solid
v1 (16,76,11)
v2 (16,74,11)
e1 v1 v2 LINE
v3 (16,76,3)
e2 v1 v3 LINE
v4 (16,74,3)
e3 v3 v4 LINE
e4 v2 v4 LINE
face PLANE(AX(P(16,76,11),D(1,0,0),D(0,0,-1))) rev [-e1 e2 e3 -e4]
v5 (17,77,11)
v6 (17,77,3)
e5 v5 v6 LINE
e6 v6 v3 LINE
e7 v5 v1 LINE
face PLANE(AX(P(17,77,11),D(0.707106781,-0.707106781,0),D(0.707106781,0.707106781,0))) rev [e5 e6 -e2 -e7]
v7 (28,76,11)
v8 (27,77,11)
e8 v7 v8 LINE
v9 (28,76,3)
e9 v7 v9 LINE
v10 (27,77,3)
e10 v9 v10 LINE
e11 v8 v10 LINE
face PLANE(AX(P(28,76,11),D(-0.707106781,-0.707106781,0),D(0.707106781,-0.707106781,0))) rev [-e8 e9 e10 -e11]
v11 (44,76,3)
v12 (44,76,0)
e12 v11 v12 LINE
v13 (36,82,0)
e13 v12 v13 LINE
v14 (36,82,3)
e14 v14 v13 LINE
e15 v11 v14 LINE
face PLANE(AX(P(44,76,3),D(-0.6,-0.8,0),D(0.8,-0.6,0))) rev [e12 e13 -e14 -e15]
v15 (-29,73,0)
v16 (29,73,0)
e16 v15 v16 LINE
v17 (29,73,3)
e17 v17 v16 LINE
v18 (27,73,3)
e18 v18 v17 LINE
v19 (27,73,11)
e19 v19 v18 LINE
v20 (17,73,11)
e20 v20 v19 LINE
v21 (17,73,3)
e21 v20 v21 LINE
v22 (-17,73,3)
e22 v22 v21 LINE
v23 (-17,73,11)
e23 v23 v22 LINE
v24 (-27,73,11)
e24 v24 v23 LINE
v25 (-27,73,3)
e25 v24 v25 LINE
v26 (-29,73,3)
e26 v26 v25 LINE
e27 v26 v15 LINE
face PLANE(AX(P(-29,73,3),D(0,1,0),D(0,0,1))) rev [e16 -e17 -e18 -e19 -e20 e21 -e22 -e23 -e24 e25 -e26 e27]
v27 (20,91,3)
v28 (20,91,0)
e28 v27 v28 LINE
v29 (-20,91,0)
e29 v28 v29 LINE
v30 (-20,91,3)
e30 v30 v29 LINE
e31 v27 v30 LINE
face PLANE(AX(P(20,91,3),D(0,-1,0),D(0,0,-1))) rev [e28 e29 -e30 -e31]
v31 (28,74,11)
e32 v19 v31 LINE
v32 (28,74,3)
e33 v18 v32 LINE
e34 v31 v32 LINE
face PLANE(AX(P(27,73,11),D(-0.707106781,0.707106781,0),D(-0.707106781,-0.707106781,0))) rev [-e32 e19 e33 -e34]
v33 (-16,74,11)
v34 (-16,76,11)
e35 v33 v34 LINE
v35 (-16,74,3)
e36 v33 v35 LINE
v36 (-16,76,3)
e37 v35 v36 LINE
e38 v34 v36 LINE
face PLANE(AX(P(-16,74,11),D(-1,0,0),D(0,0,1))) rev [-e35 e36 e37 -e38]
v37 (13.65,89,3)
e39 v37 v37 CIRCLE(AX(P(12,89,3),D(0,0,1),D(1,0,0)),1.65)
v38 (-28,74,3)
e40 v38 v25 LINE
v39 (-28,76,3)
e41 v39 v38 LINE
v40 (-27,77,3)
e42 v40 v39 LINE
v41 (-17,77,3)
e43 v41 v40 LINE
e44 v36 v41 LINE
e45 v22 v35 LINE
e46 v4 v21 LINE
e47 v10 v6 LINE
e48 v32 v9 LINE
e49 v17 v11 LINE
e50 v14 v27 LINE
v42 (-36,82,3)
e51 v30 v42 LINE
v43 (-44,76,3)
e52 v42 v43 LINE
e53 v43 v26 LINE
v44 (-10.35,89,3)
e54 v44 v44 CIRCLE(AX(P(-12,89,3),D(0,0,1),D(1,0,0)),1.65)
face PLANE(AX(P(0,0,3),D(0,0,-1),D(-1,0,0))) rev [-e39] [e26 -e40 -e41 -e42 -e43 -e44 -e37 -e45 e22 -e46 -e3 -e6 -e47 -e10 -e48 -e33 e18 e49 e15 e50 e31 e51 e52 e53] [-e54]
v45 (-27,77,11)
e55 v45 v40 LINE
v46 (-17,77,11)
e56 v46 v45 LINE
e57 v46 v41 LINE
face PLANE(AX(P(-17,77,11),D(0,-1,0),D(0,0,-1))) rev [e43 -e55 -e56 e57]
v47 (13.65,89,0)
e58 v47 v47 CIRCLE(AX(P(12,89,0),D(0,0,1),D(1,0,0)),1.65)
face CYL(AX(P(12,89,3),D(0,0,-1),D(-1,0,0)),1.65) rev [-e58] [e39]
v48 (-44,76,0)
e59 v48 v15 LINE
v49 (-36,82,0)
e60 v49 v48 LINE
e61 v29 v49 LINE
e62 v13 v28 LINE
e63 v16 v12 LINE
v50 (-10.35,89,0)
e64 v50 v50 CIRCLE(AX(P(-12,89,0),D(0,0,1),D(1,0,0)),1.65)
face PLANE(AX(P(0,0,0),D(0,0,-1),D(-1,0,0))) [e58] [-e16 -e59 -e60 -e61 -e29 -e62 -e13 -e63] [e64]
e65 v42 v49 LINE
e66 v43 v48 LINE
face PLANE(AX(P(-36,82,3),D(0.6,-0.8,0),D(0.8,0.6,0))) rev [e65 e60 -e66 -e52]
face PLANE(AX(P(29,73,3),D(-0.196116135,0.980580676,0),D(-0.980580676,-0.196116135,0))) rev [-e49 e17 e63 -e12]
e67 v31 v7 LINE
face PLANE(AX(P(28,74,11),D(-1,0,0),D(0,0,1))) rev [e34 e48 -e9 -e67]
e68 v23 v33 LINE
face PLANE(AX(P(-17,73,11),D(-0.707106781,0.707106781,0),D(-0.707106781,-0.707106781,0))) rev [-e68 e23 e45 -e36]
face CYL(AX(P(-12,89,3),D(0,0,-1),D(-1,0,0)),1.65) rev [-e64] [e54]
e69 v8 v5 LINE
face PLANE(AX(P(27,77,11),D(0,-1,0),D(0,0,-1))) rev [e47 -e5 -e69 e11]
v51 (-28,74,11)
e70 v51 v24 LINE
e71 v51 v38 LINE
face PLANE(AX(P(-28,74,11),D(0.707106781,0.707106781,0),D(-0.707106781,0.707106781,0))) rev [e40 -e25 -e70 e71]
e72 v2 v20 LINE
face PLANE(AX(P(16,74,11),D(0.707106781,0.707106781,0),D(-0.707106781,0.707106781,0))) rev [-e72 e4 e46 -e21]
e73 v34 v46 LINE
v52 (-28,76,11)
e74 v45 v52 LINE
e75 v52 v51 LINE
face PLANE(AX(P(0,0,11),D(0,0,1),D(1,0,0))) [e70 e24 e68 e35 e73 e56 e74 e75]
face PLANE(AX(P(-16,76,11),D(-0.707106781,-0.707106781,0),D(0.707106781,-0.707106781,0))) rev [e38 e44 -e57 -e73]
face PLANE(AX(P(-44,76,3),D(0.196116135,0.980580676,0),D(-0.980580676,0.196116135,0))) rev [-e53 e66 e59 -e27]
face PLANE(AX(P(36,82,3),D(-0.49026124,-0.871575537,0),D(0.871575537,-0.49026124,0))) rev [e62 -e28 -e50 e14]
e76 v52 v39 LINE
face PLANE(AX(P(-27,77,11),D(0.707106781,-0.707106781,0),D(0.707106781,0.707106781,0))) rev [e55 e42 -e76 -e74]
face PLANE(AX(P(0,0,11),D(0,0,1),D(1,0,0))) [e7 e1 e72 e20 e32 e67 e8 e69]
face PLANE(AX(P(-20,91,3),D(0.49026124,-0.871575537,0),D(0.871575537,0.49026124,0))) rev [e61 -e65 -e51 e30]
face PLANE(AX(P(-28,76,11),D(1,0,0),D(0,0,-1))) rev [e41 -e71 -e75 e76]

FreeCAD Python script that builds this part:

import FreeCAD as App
import Part
import Sketcher
from FreeCAD import Vector

doc = App.newDocument("Part")
body = doc.addObject("PartDesign::Body", "Body")

# Sketch on XY plane
sketch1 = body.newObject("Sketcher::SketchObject", "Sketch")
sketch1.AttachmentSupport = (doc.getObject("XY_Plane"), [""])
sketch1.MapMode = "FlatFace"
sketch1.addGeometry([
    Part.LineSegment(Vector(-29, 73, 0), Vector(29, 73, 0)),  # 0
    Part.LineSegment(Vector(29, 73, 0), Vector(44, 76, 0)),  # 1
    Part.LineSegment(Vector(44, 76, 0), Vector(36, 82, 0)),  # 2
    Part.LineSegment(Vector(36, 82, 0), Vector(20, 91, 0)),  # 3
    Part.LineSegment(Vector(20, 91, 0), Vector(-20, 91, 0)),  # 4
    Part.LineSegment(Vector(-20, 91, 0), Vector(-36, 82, 0)),  # 5
    Part.LineSegment(Vector(-36, 82, 0), Vector(-44, 76, 0)),  # 6
    Part.LineSegment(Vector(-44, 76, 0), Vector(-29, 73, 0)),  # 7
    Part.Circle(Vector(-12, 89, 0), Vector(0, 0, 1), 1.6),  # 8
    Part.Circle(Vector(12, 89, 0), Vector(0, 0, 1), 1.6),  # 9
], False)
sketch1.addConstraint([
    Sketcher.Constraint("Coincident", 0, 2, 1, 1),
    Sketcher.Constraint("Coincident", 1, 2, 2, 1),
    Sketcher.Constraint("Coincident", 2, 2, 3, 1),
    Sketcher.Constraint("Coincident", 3, 2, 4, 1),
    Sketcher.Constraint("Coincident", 4, 2, 5, 1),
    Sketcher.Constraint("Coincident", 5, 2, 6, 1),
    Sketcher.Constraint("Coincident", 6, 2, 7, 1),
    Sketcher.Constraint("Coincident", 7, 2, 0, 1),
    Sketcher.Constraint("Horizontal", 0),
    Sketcher.Constraint("Horizontal", 4),
    Sketcher.Constraint("Equal", 8, 9),
    Sketcher.Constraint("Symmetric", 8, 3, 9, 3, -2),
    Sketcher.Constraint("Symmetric", 2, 2, 5, 2, -2),
    Sketcher.Constraint("Symmetric", 1, 2, 6, 2, -2),
    Sketcher.Constraint("Equal", 3, 5),
    Sketcher.Constraint("Equal", 1, 7),
    Sketcher.Constraint("Diameter", 8, 3.3),
    Sketcher.Constraint("DistanceX", 0, 1, 0, 2, 58.0),
    Sketcher.Constraint("DistanceX", 4, 2, 4, 1, 40.0),
    Sketcher.Constraint("Distance", 2, 10.0),
    Sketcher.Constraint("DistanceX", 8, 3, -1, 1, 12.0),
    Sketcher.Constraint("DistanceY", -1, 1, 8, 3, 89.0),
    Sketcher.Constraint("DistanceY", -1, 1, 0, 2, 73.0),
    Sketcher.Constraint("DistanceX", -1, 1, 1, 2, 44.0),
    Sketcher.Constraint("DistanceY", -1, 1, 1, 2, 76.0),
    Sketcher.Constraint("DistanceX", -1, 1, 2, 2, 36.0),
    Sketcher.Constraint("DistanceY", -1, 1, 3, 2, 91.0),
])
pad1 = body.newObject("PartDesign::Pad", "Pad")
pad1.Profile = sketch1
pad1.Length = 3

# Sketch on XY plane
sketch2 = body.newObject("Sketcher::SketchObject", "Sketch001")
sketch2.AttachmentSupport = (doc.getObject("XY_Plane"), [""])
sketch2.MapMode = "FlatFace"
sketch2.AttachmentOffset = App.Placement(Vector(0, 0, 3), App.Rotation())
sketch2.addGeometry([
    Part.LineSegment(Vector(-27, 73, 0), Vector(-17, 73, 0)),  # 0
    Part.LineSegment(Vector(-17, 73, 0), Vector(-16, 74, 0)),  # 1
    Part.LineSegment(Vector(-16, 74, 0), Vector(-16, 76, 0)),  # 2
    Part.LineSegment(Vector(-16, 76, 0), Vector(-17, 77, 0)),  # 3
    Part.LineSegment(Vector(-17, 77, 0), Vector(-27, 77, 0)),  # 4
    Part.LineSegment(Vector(-27, 77, 0), Vector(-28, 76, 0)),  # 5
    Part.LineSegment(Vector(-28, 76, 0), Vector(-28, 74, 0)),  # 6
    Part.LineSegment(Vector(-28, 74, 0), Vector(-27, 73, 0)),  # 7
], False)
sketch2.addConstraint([
    Sketcher.Constraint("Coincident", 0, 2, 1, 1),
    Sketcher.Constraint("Coincident", 1, 2, 2, 1),
    Sketcher.Constraint("Coincident", 2, 2, 3, 1),
    Sketcher.Constraint("Coincident", 3, 2, 4, 1),
    Sketcher.Constraint("Coincident", 4, 2, 5, 1),
    Sketcher.Constraint("Coincident", 5, 2, 6, 1),
    Sketcher.Constraint("Coincident", 6, 2, 7, 1),
    Sketcher.Constraint("Coincident", 7, 2, 0, 1),
    Sketcher.Constraint("Horizontal", 0),
    Sketcher.Constraint("Vertical", 2),
    Sketcher.Constraint("Horizontal", 4),
    Sketcher.Constraint("Vertical", 6),
    Sketcher.Constraint("Perpendicular", 1, 3),
    Sketcher.Constraint("Perpendicular", 3, 5),
    Sketcher.Constraint("Perpendicular", 5, 7),
    Sketcher.Constraint("Horizontal", 2, 2, 5, 2),
    Sketcher.Constraint("Horizontal", 1, 2, 6, 2),
    Sketcher.Constraint("Vertical", 0, 2, 3, 2),
    Sketcher.Constraint("Vertical", 4, 2, 7, 2),
    Sketcher.Constraint("DistanceX", 0, 1, 0, 2, 10.0),
    Sketcher.Constraint("DistanceY", 2, 1, 2, 2, 2.0),
    Sketcher.Constraint("DistanceX", 0, 2, -1, 1, 17.0),
    Sketcher.Constraint("DistanceY", -1, 1, 0, 2, 73.0),
    Sketcher.Constraint("DistanceX", 1, 2, -1, 1, 16.0),
])
pad2 = body.newObject("PartDesign::Pad", "Pad001")
pad2.Profile = sketch2
pad2.Length = 8

# Sketch on XY plane
sketch3 = body.newObject("Sketcher::SketchObject", "Sketch002")
sketch3.AttachmentSupport = (doc.getObject("XY_Plane"), [""])
sketch3.MapMode = "FlatFace"
sketch3.AttachmentOffset = App.Placement(Vector(0, 0, 3), App.Rotation())
sketch3.addGeometry([
    Part.LineSegment(Vector(17, 73, 0), Vector(27, 73, 0)),  # 0
    Part.LineSegment(Vector(27, 73, 0), Vector(28, 74, 0)),  # 1
    Part.LineSegment(Vector(28, 74, 0), Vector(28, 76, 0)),  # 2
    Part.LineSegment(Vector(28, 76, 0), Vector(27, 77, 0)),  # 3
    Part.LineSegment(Vector(27, 77, 0), Vector(17, 77, 0)),  # 4
    Part.LineSegment(Vector(17, 77, 0), Vector(16, 76, 0)),  # 5
    Part.LineSegment(Vector(16, 76, 0), Vector(16, 74, 0)),  # 6
    Part.LineSegment(Vector(16, 74, 0), Vector(17, 73, 0)),  # 7
], False)
sketch3.addConstraint([
    Sketcher.Constraint("Coincident", 0, 2, 1, 1),
    Sketcher.Constraint("Coincident", 1, 2, 2, 1),
    Sketcher.Constraint("Coincident", 2, 2, 3, 1),
    Sketcher.Constraint("Coincident", 3, 2, 4, 1),
    Sketcher.Constraint("Coincident", 4, 2, 5, 1),
    Sketcher.Constraint("Coincident", 5, 2, 6, 1),
    Sketcher.Constraint("Coincident", 6, 2, 7, 1),
    Sketcher.Constraint("Coincident", 7, 2, 0, 1),
    Sketcher.Constraint("Horizontal", 0),
    Sketcher.Constraint("Vertical", 2),
    Sketcher.Constraint("Horizontal", 4),
    Sketcher.Constraint("Vertical", 6),
    Sketcher.Constraint("Perpendicular", 1, 3),
    Sketcher.Constraint("Perpendicular", 3, 5),
    Sketcher.Constraint("Perpendicular", 5, 7),
    Sketcher.Constraint("Horizontal", 2, 2, 5, 2),
    Sketcher.Constraint("Horizontal", 1, 2, 6, 2),
    Sketcher.Constraint("Vertical", 0, 2, 3, 2),
    Sketcher.Constraint("Vertical", 4, 2, 7, 2),
    Sketcher.Constraint("DistanceX", 0, 1, 0, 2, 10.0),
    Sketcher.Constraint("DistanceY", 2, 1, 2, 2, 2.0),
    Sketcher.Constraint("DistanceX", -1, 1, 0, 2, 27.0),
    Sketcher.Constraint("DistanceY", -1, 1, 0, 2, 73.0),
    Sketcher.Constraint("DistanceX", -1, 1, 1, 2, 28.0),
])
pad3 = body.newObject("PartDesign::Pad", "Pad002")
pad3.Profile = sketch3
pad3.Length = 8

doc.recompute()
